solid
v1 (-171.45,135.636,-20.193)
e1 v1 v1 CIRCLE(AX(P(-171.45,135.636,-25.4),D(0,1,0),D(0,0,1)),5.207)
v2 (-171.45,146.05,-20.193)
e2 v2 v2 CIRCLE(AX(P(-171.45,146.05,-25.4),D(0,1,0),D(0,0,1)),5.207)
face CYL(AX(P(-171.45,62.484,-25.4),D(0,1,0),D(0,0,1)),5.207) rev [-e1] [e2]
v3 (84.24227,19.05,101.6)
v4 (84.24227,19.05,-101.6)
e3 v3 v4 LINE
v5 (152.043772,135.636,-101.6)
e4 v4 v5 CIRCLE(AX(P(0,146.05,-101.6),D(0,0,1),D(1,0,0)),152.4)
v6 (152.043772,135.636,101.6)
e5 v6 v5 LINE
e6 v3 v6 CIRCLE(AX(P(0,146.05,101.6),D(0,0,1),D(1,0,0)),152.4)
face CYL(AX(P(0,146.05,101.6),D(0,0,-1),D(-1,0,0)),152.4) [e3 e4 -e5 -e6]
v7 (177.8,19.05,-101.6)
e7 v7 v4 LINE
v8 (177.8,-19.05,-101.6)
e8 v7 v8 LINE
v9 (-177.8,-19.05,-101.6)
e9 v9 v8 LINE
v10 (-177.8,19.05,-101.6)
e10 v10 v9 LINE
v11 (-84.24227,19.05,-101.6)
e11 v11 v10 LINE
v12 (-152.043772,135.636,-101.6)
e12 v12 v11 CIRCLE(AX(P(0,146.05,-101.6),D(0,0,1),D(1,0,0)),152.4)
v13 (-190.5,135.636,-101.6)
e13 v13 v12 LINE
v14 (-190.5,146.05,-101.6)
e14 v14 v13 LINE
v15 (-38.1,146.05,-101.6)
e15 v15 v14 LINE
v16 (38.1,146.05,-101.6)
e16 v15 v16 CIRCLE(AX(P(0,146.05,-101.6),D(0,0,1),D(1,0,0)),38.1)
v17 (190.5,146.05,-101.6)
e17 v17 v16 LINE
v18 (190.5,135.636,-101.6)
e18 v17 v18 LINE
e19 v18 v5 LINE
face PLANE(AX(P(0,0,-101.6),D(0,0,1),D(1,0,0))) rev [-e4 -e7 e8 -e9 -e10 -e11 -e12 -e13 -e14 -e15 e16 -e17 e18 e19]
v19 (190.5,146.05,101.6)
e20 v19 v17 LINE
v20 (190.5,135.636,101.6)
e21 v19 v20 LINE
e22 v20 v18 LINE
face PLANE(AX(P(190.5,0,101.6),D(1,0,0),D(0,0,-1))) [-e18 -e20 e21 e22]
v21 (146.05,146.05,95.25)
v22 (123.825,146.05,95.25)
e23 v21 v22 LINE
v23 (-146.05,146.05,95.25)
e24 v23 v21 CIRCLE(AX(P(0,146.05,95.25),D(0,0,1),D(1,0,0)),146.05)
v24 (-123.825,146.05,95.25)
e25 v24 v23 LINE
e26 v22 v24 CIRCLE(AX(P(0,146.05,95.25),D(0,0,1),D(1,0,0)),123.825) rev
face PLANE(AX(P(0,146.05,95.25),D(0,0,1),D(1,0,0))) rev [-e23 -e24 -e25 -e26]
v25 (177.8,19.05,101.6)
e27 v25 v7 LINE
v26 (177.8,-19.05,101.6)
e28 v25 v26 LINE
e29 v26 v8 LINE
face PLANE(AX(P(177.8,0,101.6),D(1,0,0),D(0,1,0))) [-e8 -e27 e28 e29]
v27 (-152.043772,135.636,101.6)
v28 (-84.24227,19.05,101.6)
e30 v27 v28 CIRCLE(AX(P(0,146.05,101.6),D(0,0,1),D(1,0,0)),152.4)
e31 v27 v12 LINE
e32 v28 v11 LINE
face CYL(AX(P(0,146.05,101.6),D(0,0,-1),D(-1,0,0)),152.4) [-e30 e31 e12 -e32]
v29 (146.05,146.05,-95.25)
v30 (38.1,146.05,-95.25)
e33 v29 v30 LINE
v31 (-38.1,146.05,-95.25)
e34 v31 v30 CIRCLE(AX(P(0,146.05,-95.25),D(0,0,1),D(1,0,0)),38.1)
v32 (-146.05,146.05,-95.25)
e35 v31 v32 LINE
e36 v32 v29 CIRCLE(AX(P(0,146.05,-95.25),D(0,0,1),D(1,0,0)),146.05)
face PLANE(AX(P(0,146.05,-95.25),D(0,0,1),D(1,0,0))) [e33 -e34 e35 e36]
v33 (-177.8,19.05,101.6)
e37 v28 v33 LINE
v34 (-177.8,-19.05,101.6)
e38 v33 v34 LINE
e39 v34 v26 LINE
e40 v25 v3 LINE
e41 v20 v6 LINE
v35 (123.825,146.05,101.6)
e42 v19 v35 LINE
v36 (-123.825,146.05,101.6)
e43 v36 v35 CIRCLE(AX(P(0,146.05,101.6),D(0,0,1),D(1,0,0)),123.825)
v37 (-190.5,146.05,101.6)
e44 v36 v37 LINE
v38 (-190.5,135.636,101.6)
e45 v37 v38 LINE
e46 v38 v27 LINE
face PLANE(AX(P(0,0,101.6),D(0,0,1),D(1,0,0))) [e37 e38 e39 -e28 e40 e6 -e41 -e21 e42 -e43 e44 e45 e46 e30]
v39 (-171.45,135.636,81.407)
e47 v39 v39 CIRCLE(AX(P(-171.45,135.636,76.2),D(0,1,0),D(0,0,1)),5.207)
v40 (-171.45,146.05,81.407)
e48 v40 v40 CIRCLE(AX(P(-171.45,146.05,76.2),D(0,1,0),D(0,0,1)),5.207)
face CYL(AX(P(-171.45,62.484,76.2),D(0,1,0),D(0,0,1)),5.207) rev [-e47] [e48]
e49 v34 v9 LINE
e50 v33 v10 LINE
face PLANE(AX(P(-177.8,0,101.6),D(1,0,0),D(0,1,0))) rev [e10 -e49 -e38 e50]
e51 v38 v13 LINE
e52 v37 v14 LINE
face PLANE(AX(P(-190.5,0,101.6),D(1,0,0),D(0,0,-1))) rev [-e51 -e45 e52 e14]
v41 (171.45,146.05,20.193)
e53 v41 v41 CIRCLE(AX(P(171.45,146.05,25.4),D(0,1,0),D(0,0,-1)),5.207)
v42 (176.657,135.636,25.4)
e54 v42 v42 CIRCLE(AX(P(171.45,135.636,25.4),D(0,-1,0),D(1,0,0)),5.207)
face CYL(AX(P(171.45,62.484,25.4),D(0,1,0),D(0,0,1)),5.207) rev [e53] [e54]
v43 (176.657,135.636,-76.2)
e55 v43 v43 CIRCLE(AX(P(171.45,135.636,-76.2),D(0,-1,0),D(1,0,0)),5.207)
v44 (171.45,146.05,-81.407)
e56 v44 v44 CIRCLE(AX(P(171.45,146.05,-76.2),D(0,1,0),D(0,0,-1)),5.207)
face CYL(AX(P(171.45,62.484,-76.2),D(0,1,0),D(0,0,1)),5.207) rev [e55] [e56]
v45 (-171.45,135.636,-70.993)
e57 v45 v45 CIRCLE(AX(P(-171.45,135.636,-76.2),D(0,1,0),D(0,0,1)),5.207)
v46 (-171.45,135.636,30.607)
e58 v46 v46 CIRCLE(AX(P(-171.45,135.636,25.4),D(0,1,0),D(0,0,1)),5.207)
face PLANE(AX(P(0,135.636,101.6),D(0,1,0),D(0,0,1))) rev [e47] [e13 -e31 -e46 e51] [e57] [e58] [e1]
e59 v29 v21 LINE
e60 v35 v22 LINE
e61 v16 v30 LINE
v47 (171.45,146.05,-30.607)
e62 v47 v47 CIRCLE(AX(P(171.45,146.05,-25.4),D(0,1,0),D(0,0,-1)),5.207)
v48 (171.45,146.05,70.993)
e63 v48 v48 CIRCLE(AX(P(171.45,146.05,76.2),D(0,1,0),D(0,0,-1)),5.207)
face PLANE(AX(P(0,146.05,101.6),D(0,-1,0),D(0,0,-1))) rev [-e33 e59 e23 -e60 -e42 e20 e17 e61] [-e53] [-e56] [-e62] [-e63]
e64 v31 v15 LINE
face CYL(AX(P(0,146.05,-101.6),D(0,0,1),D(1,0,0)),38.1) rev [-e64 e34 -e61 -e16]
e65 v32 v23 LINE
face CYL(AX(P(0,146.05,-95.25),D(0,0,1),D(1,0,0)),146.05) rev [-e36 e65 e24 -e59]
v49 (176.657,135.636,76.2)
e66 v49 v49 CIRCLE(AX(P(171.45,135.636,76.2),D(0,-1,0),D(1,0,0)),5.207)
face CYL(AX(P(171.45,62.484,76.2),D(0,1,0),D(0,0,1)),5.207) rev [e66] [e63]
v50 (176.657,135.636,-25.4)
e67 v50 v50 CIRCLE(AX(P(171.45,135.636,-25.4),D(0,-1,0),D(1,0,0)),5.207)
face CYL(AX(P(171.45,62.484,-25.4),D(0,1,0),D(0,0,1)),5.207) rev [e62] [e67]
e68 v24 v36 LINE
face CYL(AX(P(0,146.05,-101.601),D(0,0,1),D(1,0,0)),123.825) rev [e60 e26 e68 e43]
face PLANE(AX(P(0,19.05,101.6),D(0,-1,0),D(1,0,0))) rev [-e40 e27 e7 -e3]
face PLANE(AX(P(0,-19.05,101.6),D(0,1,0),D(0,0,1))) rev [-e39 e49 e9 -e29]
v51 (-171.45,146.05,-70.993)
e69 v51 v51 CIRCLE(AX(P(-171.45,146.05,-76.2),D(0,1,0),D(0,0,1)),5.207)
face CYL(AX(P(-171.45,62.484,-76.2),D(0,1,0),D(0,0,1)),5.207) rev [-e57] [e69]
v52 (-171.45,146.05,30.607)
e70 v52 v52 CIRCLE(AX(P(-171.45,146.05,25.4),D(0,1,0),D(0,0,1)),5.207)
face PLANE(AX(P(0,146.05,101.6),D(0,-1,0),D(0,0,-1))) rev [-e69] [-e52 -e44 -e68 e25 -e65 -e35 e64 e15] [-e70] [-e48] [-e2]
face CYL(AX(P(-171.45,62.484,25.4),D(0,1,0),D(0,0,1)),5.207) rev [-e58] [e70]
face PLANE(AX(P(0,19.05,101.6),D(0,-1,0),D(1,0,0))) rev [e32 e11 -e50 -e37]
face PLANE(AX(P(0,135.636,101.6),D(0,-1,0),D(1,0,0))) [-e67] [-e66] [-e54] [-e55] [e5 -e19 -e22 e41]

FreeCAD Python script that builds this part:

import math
import FreeCAD as App
import Part
import Sketcher

V = App.Vector
Q = App.Units.Quantity

doc = App.newDocument("Part")
params = doc.addObject("Spreadsheet::Sheet", "Params")
for row, (alias, value) in enumerate([
    ("sketch1_radius", "6 in"),
    ("sketch1_width", "14 in"),
    ("sketch1_width2", "15 in"),
    ("sketch1_height", "1.5 in"),
    ("sketch1_height2", "5 in"),
    ("pad1_length", "8 in"),
    ("sketch2_radius", "5.75 in"),
    ("pocket1_length", "7.5 in"),
    ("sketch3_diameter", "9.75 in"),
    ("sketch4_diameter", "3 in"),
    ("sketch5_diameter", "0.41 in"),
    ("pocket4_length", "3.29 in"),
], start=1):
    params.set(f"A{row}", alias)
    params.set(f"B{row}", "=" + value)
    params.setAlias(f"B{row}", alias)

body = doc.addObject("PartDesign::Body", "Body")

sketch1 = body.newObject("Sketcher::SketchObject", "Sketch")
sketch1.AttachmentSupport = (doc.getObject("XY_Plane"), [""])
sketch1.MapMode = "FlatFace"
sketch1.addGeometry(Part.LineSegment(V(-190, 136, 0), V(-152, 136, 0)), False)
sketch1.addGeometry(Part.ArcOfCircle(Part.Circle(V(0, 146, 0), V(0, 0, 1), 152), math.radians(-176), math.radians(-124)), False)
sketch1.addGeometry(Part.LineSegment(V(-84, 19, 0), V(-178, 19, 0)), False)
sketch1.addGeometry(Part.LineSegment(V(-178, 19, 0), V(-178, -19, 0)), False)
sketch1.addGeometry(Part.LineSegment(V(-178, -19, 0), V(178, -19, 0)), False)
sketch1.addGeometry(Part.LineSegment(V(178, -19, 0), V(178, 19, 0)), False)
sketch1.addGeometry(Part.LineSegment(V(178, 19, 0), V(84, 19, 0)), False)
sketch1.addGeometry(Part.ArcOfCircle(Part.Circle(V(0, 146, 0), V(0, 0, 1), 152), math.radians(-56), math.radians(-4)), False)
sketch1.addGeometry(Part.LineSegment(V(152, 136, 0), V(190, 136, 0)), False)
sketch1.addGeometry(Part.LineSegment(V(190, 136, 0), V(190, 146, 0)), False)
sketch1.addGeometry(Part.LineSegment(V(190, 146, 0), V(-190, 146, 0)), False)
sketch1.addGeometry(Part.LineSegment(V(-190, 146, 0), V(-190, 136, 0)), False)
sketch1.addConstraint(Sketcher.Constraint("Coincident", 0, 2, 1, 1))
sketch1.addConstraint(Sketcher.Constraint("Coincident", 1, 2, 2, 1))
sketch1.addConstraint(Sketcher.Constraint("Coincident", 2, 2, 3, 1))
sketch1.addConstraint(Sketcher.Constraint("Coincident", 3, 2, 4, 1))
sketch1.addConstraint(Sketcher.Constraint("Coincident", 4, 2, 5, 1))
sketch1.addConstraint(Sketcher.Constraint("Coincident", 5, 2, 6, 1))
sketch1.addConstraint(Sketcher.Constraint("Coincident", 6, 2, 7, 1))
sketch1.addConstraint(Sketcher.Constraint("Coincident", 7, 2, 8, 1))
sketch1.addConstraint(Sketcher.Constraint("Coincident", 8, 2, 9, 1))
sketch1.addConstraint(Sketcher.Constraint("Coincident", 9, 2, 10, 1))
sketch1.addConstraint(Sketcher.Constraint("Coincident", 10, 2, 11, 1))
sketch1.addConstraint(Sketcher.Constraint("Coincident", 11, 2, 0, 1))
sketch1.addConstraint(Sketcher.Constraint("Horizontal", 0))
sketch1.addConstraint(Sketcher.Constraint("Horizontal", 2))
sketch1.addConstraint(Sketcher.Constraint("Vertical", 3))
sketch1.addConstraint(Sketcher.Constraint("Horizontal", 4))
sketch1.addConstraint(Sketcher.Constraint("Vertical", 5))
sketch1.addConstraint(Sketcher.Constraint("Horizontal", 6))
sketch1.addConstraint(Sketcher.Constraint("Horizontal", 8))
sketch1.addConstraint(Sketcher.Constraint("Vertical", 9))
sketch1.addConstraint(Sketcher.Constraint("Horizontal", 10))
sketch1.addConstraint(Sketcher.Constraint("Vertical", 11))
sketch1.addConstraint(Sketcher.Constraint("Coincident", 7, 3, 1, 3))
sketch1.addConstraint(Sketcher.Constraint("Equal", 1, 7))
sketch1.addConstraint(Sketcher.Constraint("Symmetric", 2, 2, 4, 2, -1, 1))
sketch1.addConstraint(Sketcher.Constraint("Symmetric", 1, 2, 6, 2, -2))
sketch1.addConstraint(Sketcher.Constraint("Symmetric", 8, 2, 11, 2, -2))
sketch1.addConstraint(Sketcher.Constraint("Horizontal", 7, 3, 9, 2))
sketch1.addConstraint(Sketcher.Constraint("Radius", 1, Q("6 in")))
sketch1.addConstraint(Sketcher.Constraint("DistanceX", 4, 1, 4, 2, Q("14 in")))
sketch1.addConstraint(Sketcher.Constraint("DistanceX", 10, 2, 10, 1, Q("15 in")))
sketch1.addConstraint(Sketcher.Constraint("DistanceY", 3, 2, 3, 1, Q("1.5 in")))
sketch1.addConstraint(Sketcher.Constraint("DistanceY", 1, 2, 1, 3, Q("5 in")))
sketch1.addConstraint(Sketcher.Constraint("DistanceY", 9, 1, 9, 2, Q("0.41 in")))
sketch1.setExpression("Constraints[28]", "Params.sketch1_radius")
sketch1.setExpression("Constraints[29]", "Params.sketch1_width")
sketch1.setExpression("Constraints[30]", "Params.sketch1_width2")
sketch1.setExpression("Constraints[31]", "Params.sketch1_height")
sketch1.setExpression("Constraints[32]", "Params.sketch1_height2")
pad1 = body.newObject("PartDesign::Pad", "Pad")
pad1.Profile = sketch1
pad1.setExpression("Length", "Params.pad1_length")
pad1.Midplane = True

sketch2 = body.newObject("Sketcher::SketchObject", "Sketch001")
sketch2.AttachmentSupport = (doc.getObject("XY_Plane"), [""])
sketch2.MapMode = "FlatFace"
sketch2.addGeometry(Part.LineSegment(V(146, 146, 0), V(-146, 146, 0)), False)
sketch2.addGeometry(Part.ArcOfCircle(Part.Circle(V(0, 146, 0), V(0, 0, 1), 146), math.radians(180), math.radians(360)), False)
sketch2.addConstraint(Sketcher.Constraint("Coincident", 0, 1, 1, 2))
sketch2.addConstraint(Sketcher.Constraint("Coincident", 1, 1, 0, 2))
sketch2.addConstraint(Sketcher.Constraint("Horizontal", 0))
sketch2.addConstraint(Sketcher.Constraint("PointOnObject", 1, 3, -2))
sketch2.addConstraint(Sketcher.Constraint("Horizontal", 1, 3, 0, 1))
sketch2.addConstraint(Sketcher.Constraint("Radius", 1, Q("5.75 in")))
sketch2.addConstraint(Sketcher.Constraint("DistanceY", -1, 1, 1, 3, Q("5.75 in")))
sketch2.setExpression("Constraints[5]", "Params.sketch2_radius")
pocket1 = body.newObject("PartDesign::Pocket", "Pocket")
pocket1.Profile = sketch2
pocket1.setExpression("Length", "Params.pocket1_length")
pocket1.Midplane = True

sketch3 = body.newObject("Sketcher::SketchObject", "Sketch002")
sketch3.AttachmentSupport = (doc.getObject("XY_Plane"), [""])
sketch3.MapMode = "FlatFace"
sketch3.AttachmentOffset = App.Placement(V(0, 0, 4 * 25.4), App.Rotation())
sketch3.addGeometry(Part.Circle(V(0, 146, 0), V(0, 0, 1), 124), False)
sketch3.addConstraint(Sketcher.Constraint("PointOnObject", 0, 3, -2))
sketch3.addConstraint(Sketcher.Constraint("Diameter", 0, Q("9.75 in")))
sketch3.addConstraint(Sketcher.Constraint("DistanceY", -1, 1, 0, 3, Q("5.75 in")))
sketch3.setExpression("Constraints[1]", "Params.sketch3_diameter")
pocket2 = body.newObject("PartDesign::Pocket", "Pocket001")
pocket2.Profile = sketch3
pocket2.Type = "UpToFirst"

sketch4 = body.newObject("Sketcher::SketchObject", "Sketch003")
sketch4.AttachmentSupport = (doc.getObject("XY_Plane"), [""])
sketch4.MapMode = "FlatFace"
sketch4.AttachmentOffset = App.Placement(V(0, 0, -3.75 * 25.4), App.Rotation())
sketch4.addGeometry(Part.Circle(V(0, 146, 0), V(0, 0, 1), 38), False)
sketch4.addConstraint(Sketcher.Constraint("PointOnObject", 0, 3, -2))
sketch4.addConstraint(Sketcher.Constraint("Diameter", 0, Q("3 in")))
sketch4.addConstraint(Sketcher.Constraint("DistanceY", -1, 1, 0, 3, Q("5.75 in")))
sketch4.setExpression("Constraints[1]", "Params.sketch4_diameter")
pocket3 = body.newObject("PartDesign::Pocket", "Pocket002")
pocket3.Profile = sketch4
pocket3.Type = "ThroughAll"

sketch5 = body.newObject("Sketcher::SketchObject", "Sketch004")
sketch5.AttachmentSupport = (doc.getObject("XZ_Plane"), [""])
sketch5.MapMode = "FlatFace"
sketch5.AttachmentOffset = App.Placement(V(0, 0, -5.75 * 25.4), App.Rotation())
sketch5.addGeometry(Part.Circle(V(-171, -76, 0), V(0, 0, 1), 5), False)
sketch5.addGeometry(Part.Circle(V(-171, -25, 0), V(0, 0, 1), 5), False)
sketch5.addGeometry(Part.Circle(V(-171, 25, 0), V(0, 0, 1), 5), False)
sketch5.addGeometry(Part.Circle(V(-171, 76, 0), V(0, 0, 1), 5), False)
sketch5.addGeometry(Part.Circle(V(171, 76, 0), V(0, 0, 1), 5), False)
sketch5.addGeometry(Part.Circle(V(171, 25, 0), V(0, 0, 1), 5), False)
sketch5.addGeometry(Part.Circle(V(171, -25, 0), V(0, 0, 1), 5), False)
sketch5.addGeometry(Part.Circle(V(171, -76, 0), V(0, 0, 1), 5), False)
sketch5.addConstraint(Sketcher.Constraint("Equal", 0, 1))
sketch5.addConstraint(Sketcher.Constraint("Equal", 1, 2))
sketch5.addConstraint(Sketcher.Constraint("Equal", 2, 3))
sketch5.addConstraint(Sketcher.Constraint("Equal", 3, 4))
sketch5.addConstraint(Sketcher.Constraint("Equal", 4, 5))
sketch5.addConstraint(Sketcher.Constraint("Equal", 5, 6))
sketch5.addConstraint(Sketcher.Constraint("Equal", 6, 7))
sketch5.addConstraint(Sketcher.Constraint("Symmetric", 0, 3, 4, 3, -1, 1))
sketch5.addConstraint(Sketcher.Constraint("Symmetric", 1, 3, 5, 3, -1, 1))
sketch5.addConstraint(Sketcher.Constraint("Symmetric", 2, 3, 6, 3, -1, 1))
sketch5.addConstraint(Sketcher.Constraint("Symmetric", 3, 3, 7, 3, -1, 1))
sketch5.addConstraint(Sketcher.Constraint("Symmetric", 3, 3, 4, 3, -2))
sketch5.addConstraint(Sketcher.Constraint("Symmetric", 2, 3, 5, 3, -2))
sketch5.addConstraint(Sketcher.Constraint("Vertical", 0, 3, 1, 3))
sketch5.addConstraint(Sketcher.Constraint("Diameter", 0, Q("0.41 in")))
sketch5.addConstraint(Sketcher.Constraint("DistanceY", 0, 3, -1, 1, Q("3 in")))
sketch5.addConstraint(Sketcher.Constraint("DistanceY", 1, 3, -1, 1, Q("1 in")))
sketch5.addConstraint(Sketcher.Constraint("DistanceX", 3, 3, 4, 3, Q("13.5 in")))
sketch5.setExpression("Constraints[14]", "Params.sketch5_diameter")
pocket4 = body.newObject("PartDesign::Pocket", "Pocket003")
pocket4.Profile = sketch5
pocket4.setExpression("Length", "Params.pocket4_length")
pocket4.Reversed = True

doc.recompute()
